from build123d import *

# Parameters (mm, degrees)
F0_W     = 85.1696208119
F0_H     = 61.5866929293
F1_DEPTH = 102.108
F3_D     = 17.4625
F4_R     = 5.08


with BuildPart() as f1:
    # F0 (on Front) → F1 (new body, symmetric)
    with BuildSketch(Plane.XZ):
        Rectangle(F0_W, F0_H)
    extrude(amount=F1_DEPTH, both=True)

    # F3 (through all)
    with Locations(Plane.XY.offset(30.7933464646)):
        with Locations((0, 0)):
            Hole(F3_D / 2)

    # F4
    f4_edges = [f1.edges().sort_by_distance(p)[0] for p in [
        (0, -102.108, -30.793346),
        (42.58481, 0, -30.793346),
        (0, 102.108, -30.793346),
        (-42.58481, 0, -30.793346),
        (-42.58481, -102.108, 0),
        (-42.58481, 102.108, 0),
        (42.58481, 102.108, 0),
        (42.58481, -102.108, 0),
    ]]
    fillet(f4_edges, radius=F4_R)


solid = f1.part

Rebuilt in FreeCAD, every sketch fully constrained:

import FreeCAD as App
import Part
import Sketcher
from FreeCAD import Vector
Q = App.Units.Quantity


def edges_at(feature, points):
    """Names of the edges that pass closest to the given points."""
    edges = feature.Shape.Edges
    near = lambda p: min(range(len(edges)), key=lambda i: edges[i].distToShape(Part.Vertex(*p))[0])
    return sorted({f"Edge{near(p) + 1}" for p in points})

doc = App.newDocument("Part")
params = doc.addObject("Spreadsheet::Sheet", "Params")
for row, (alias, value) in enumerate([
    ("pad1_length", "8.04 in"),
    ("sketch2_diameter", "0.6875 in"),
    ("hole_diameter", "0.6875 in"),
    ("fillet_radius", "0.2 in"),
], start=1):
    params.set(f"A{row}", alias)
    params.set(f"B{row}", "=" + value)
    params.setAlias(f"B{row}", alias)

body = doc.addObject("PartDesign::Body", "Body")

# Sketch on XZ plane
sketch1 = body.newObject("Sketcher::SketchObject", "Sketch")
sketch1.AttachmentSupport = (doc.getObject("XZ_Plane"), [""])
sketch1.MapMode = "FlatFace"
sketch1.addGeometry(Part.LineSegment(Vector(-43, 31, 0), Vector(-43, -31, 0)), False)
sketch1.addGeometry(Part.LineSegment(Vector(-43, -31, 0), Vector(43, -31, 0)), False)
sketch1.addGeometry(Part.LineSegment(Vector(43, -31, 0), Vector(43, 31, 0)), False)
sketch1.addGeometry(Part.LineSegment(Vector(43, 31, 0), Vector(-43, 31, 0)), False)
sketch1.addConstraint(Sketcher.Constraint("Coincident", 0, 2, 1, 1))
sketch1.addConstraint(Sketcher.Constraint("Coincident", 1, 2, 2, 1))
sketch1.addConstraint(Sketcher.Constraint("Coincident", 2, 2, 3, 1))
sketch1.addConstraint(Sketcher.Constraint("Coincident", 3, 2, 0, 1))
sketch1.addConstraint(Sketcher.Constraint("Vertical", 0))
sketch1.addConstraint(Sketcher.Constraint("Horizontal", 1))
sketch1.addConstraint(Sketcher.Constraint("Vertical", 2))
sketch1.addConstraint(Sketcher.Constraint("Horizontal", 3))
sketch1.addConstraint(Sketcher.Constraint("Symmetric", 0, 2, 2, 2, -1, 1))
sketch1.addConstraint(Sketcher.Constraint("DistanceX", 1, 1, 1, 2, Q("85.169621 mm")))
sketch1.addConstraint(Sketcher.Constraint("DistanceY", 0, 2, 0, 1, Q("61.586693 mm")))
pad1 = body.newObject("PartDesign::Pad", "Pad")
pad1.Profile = sketch1
pad1.setExpression("Length", "Params.pad1_length")
pad1.Midplane = True

# Sketch on XY plane
sketch2 = body.newObject("Sketcher::SketchObject", "Sketch001")
sketch2.AttachmentSupport = (doc.getObject("XY_Plane"), [""])
sketch2.MapMode = "FlatFace"
sketch2.AttachmentOffset = App.Placement(Vector(0, 0, 30.793346), App.Rotation())
sketch2.addGeometry(Part.Circle(Vector(0, 0, 0), Vector(0, 0, 1), 9), False)
sketch2.addConstraint(Sketcher.Constraint("Coincident", 0, 3, -1, 1))
sketch2.addConstraint(Sketcher.Constraint("Diameter", 0, Q("0.6875 in")))
sketch2.setExpression("Constraints[1]", "Params.sketch2_diameter")
doc.recompute()
hole = body.newObject("PartDesign::Hole", "Hole")
hole.Profile = sketch2
hole.ThreadType = "None"
hole.setExpression("Diameter", "Params.hole_diameter")
hole.DepthType = "ThroughAll"
doc.recompute()

fillet = body.newObject("PartDesign::Fillet", "Fillet")
fillet.Base = (hole, edges_at(hole, [
    (0, -102.108, -30.793),
    (42.585, 0, -30.793),
    (0, 102.108, -30.793),
    (-42.585, 0, -30.793),
    (-42.585, -102.108, 0),
    (-42.585, 102.108, 0),
    (42.585, 102.108, 0),
    (42.585, -102.108, 0),
]))
fillet.setExpression("Radius", "Params.fillet_radius")

doc.recompute()
